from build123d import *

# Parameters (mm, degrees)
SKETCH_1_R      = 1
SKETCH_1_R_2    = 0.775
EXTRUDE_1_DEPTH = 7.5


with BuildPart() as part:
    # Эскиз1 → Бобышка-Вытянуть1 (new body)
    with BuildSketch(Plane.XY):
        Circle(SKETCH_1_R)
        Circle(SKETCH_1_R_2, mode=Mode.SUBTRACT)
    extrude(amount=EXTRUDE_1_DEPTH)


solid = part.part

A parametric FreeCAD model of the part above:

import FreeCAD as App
import Part
import Sketcher

V = App.Vector

doc = App.newDocument("Part")
body = doc.addObject("PartDesign::Body", "Body")

# Sketch on XY plane
sketch1 = body.newObject("Sketcher::SketchObject", "Sketch")
sketch1.AttachmentSupport = (doc.getObject("XY_Plane"), [""])
sketch1.MapMode = "FlatFace"
sketch1.addGeometry([
    Part.Circle(V(0, 0, 0), V(0, 0, 1), 1),
    Part.Circle(V(0, 0, 0), V(0, 0, 1), 0.775),
], False)
sketch1.addConstraint([
    Sketcher.Constraint("Coincident", 0, 3, -1, 1),
    Sketcher.Constraint("Coincident", 1, 3, -1, 1),
    Sketcher.Constraint("Diameter", 0, 2.0),
    Sketcher.Constraint("Diameter", 1, 1.55),
])
pad1 = body.newObject("PartDesign::Pad", "Pad")
pad1.Profile = sketch1
pad1.Length = 7.5

doc.recompute()
